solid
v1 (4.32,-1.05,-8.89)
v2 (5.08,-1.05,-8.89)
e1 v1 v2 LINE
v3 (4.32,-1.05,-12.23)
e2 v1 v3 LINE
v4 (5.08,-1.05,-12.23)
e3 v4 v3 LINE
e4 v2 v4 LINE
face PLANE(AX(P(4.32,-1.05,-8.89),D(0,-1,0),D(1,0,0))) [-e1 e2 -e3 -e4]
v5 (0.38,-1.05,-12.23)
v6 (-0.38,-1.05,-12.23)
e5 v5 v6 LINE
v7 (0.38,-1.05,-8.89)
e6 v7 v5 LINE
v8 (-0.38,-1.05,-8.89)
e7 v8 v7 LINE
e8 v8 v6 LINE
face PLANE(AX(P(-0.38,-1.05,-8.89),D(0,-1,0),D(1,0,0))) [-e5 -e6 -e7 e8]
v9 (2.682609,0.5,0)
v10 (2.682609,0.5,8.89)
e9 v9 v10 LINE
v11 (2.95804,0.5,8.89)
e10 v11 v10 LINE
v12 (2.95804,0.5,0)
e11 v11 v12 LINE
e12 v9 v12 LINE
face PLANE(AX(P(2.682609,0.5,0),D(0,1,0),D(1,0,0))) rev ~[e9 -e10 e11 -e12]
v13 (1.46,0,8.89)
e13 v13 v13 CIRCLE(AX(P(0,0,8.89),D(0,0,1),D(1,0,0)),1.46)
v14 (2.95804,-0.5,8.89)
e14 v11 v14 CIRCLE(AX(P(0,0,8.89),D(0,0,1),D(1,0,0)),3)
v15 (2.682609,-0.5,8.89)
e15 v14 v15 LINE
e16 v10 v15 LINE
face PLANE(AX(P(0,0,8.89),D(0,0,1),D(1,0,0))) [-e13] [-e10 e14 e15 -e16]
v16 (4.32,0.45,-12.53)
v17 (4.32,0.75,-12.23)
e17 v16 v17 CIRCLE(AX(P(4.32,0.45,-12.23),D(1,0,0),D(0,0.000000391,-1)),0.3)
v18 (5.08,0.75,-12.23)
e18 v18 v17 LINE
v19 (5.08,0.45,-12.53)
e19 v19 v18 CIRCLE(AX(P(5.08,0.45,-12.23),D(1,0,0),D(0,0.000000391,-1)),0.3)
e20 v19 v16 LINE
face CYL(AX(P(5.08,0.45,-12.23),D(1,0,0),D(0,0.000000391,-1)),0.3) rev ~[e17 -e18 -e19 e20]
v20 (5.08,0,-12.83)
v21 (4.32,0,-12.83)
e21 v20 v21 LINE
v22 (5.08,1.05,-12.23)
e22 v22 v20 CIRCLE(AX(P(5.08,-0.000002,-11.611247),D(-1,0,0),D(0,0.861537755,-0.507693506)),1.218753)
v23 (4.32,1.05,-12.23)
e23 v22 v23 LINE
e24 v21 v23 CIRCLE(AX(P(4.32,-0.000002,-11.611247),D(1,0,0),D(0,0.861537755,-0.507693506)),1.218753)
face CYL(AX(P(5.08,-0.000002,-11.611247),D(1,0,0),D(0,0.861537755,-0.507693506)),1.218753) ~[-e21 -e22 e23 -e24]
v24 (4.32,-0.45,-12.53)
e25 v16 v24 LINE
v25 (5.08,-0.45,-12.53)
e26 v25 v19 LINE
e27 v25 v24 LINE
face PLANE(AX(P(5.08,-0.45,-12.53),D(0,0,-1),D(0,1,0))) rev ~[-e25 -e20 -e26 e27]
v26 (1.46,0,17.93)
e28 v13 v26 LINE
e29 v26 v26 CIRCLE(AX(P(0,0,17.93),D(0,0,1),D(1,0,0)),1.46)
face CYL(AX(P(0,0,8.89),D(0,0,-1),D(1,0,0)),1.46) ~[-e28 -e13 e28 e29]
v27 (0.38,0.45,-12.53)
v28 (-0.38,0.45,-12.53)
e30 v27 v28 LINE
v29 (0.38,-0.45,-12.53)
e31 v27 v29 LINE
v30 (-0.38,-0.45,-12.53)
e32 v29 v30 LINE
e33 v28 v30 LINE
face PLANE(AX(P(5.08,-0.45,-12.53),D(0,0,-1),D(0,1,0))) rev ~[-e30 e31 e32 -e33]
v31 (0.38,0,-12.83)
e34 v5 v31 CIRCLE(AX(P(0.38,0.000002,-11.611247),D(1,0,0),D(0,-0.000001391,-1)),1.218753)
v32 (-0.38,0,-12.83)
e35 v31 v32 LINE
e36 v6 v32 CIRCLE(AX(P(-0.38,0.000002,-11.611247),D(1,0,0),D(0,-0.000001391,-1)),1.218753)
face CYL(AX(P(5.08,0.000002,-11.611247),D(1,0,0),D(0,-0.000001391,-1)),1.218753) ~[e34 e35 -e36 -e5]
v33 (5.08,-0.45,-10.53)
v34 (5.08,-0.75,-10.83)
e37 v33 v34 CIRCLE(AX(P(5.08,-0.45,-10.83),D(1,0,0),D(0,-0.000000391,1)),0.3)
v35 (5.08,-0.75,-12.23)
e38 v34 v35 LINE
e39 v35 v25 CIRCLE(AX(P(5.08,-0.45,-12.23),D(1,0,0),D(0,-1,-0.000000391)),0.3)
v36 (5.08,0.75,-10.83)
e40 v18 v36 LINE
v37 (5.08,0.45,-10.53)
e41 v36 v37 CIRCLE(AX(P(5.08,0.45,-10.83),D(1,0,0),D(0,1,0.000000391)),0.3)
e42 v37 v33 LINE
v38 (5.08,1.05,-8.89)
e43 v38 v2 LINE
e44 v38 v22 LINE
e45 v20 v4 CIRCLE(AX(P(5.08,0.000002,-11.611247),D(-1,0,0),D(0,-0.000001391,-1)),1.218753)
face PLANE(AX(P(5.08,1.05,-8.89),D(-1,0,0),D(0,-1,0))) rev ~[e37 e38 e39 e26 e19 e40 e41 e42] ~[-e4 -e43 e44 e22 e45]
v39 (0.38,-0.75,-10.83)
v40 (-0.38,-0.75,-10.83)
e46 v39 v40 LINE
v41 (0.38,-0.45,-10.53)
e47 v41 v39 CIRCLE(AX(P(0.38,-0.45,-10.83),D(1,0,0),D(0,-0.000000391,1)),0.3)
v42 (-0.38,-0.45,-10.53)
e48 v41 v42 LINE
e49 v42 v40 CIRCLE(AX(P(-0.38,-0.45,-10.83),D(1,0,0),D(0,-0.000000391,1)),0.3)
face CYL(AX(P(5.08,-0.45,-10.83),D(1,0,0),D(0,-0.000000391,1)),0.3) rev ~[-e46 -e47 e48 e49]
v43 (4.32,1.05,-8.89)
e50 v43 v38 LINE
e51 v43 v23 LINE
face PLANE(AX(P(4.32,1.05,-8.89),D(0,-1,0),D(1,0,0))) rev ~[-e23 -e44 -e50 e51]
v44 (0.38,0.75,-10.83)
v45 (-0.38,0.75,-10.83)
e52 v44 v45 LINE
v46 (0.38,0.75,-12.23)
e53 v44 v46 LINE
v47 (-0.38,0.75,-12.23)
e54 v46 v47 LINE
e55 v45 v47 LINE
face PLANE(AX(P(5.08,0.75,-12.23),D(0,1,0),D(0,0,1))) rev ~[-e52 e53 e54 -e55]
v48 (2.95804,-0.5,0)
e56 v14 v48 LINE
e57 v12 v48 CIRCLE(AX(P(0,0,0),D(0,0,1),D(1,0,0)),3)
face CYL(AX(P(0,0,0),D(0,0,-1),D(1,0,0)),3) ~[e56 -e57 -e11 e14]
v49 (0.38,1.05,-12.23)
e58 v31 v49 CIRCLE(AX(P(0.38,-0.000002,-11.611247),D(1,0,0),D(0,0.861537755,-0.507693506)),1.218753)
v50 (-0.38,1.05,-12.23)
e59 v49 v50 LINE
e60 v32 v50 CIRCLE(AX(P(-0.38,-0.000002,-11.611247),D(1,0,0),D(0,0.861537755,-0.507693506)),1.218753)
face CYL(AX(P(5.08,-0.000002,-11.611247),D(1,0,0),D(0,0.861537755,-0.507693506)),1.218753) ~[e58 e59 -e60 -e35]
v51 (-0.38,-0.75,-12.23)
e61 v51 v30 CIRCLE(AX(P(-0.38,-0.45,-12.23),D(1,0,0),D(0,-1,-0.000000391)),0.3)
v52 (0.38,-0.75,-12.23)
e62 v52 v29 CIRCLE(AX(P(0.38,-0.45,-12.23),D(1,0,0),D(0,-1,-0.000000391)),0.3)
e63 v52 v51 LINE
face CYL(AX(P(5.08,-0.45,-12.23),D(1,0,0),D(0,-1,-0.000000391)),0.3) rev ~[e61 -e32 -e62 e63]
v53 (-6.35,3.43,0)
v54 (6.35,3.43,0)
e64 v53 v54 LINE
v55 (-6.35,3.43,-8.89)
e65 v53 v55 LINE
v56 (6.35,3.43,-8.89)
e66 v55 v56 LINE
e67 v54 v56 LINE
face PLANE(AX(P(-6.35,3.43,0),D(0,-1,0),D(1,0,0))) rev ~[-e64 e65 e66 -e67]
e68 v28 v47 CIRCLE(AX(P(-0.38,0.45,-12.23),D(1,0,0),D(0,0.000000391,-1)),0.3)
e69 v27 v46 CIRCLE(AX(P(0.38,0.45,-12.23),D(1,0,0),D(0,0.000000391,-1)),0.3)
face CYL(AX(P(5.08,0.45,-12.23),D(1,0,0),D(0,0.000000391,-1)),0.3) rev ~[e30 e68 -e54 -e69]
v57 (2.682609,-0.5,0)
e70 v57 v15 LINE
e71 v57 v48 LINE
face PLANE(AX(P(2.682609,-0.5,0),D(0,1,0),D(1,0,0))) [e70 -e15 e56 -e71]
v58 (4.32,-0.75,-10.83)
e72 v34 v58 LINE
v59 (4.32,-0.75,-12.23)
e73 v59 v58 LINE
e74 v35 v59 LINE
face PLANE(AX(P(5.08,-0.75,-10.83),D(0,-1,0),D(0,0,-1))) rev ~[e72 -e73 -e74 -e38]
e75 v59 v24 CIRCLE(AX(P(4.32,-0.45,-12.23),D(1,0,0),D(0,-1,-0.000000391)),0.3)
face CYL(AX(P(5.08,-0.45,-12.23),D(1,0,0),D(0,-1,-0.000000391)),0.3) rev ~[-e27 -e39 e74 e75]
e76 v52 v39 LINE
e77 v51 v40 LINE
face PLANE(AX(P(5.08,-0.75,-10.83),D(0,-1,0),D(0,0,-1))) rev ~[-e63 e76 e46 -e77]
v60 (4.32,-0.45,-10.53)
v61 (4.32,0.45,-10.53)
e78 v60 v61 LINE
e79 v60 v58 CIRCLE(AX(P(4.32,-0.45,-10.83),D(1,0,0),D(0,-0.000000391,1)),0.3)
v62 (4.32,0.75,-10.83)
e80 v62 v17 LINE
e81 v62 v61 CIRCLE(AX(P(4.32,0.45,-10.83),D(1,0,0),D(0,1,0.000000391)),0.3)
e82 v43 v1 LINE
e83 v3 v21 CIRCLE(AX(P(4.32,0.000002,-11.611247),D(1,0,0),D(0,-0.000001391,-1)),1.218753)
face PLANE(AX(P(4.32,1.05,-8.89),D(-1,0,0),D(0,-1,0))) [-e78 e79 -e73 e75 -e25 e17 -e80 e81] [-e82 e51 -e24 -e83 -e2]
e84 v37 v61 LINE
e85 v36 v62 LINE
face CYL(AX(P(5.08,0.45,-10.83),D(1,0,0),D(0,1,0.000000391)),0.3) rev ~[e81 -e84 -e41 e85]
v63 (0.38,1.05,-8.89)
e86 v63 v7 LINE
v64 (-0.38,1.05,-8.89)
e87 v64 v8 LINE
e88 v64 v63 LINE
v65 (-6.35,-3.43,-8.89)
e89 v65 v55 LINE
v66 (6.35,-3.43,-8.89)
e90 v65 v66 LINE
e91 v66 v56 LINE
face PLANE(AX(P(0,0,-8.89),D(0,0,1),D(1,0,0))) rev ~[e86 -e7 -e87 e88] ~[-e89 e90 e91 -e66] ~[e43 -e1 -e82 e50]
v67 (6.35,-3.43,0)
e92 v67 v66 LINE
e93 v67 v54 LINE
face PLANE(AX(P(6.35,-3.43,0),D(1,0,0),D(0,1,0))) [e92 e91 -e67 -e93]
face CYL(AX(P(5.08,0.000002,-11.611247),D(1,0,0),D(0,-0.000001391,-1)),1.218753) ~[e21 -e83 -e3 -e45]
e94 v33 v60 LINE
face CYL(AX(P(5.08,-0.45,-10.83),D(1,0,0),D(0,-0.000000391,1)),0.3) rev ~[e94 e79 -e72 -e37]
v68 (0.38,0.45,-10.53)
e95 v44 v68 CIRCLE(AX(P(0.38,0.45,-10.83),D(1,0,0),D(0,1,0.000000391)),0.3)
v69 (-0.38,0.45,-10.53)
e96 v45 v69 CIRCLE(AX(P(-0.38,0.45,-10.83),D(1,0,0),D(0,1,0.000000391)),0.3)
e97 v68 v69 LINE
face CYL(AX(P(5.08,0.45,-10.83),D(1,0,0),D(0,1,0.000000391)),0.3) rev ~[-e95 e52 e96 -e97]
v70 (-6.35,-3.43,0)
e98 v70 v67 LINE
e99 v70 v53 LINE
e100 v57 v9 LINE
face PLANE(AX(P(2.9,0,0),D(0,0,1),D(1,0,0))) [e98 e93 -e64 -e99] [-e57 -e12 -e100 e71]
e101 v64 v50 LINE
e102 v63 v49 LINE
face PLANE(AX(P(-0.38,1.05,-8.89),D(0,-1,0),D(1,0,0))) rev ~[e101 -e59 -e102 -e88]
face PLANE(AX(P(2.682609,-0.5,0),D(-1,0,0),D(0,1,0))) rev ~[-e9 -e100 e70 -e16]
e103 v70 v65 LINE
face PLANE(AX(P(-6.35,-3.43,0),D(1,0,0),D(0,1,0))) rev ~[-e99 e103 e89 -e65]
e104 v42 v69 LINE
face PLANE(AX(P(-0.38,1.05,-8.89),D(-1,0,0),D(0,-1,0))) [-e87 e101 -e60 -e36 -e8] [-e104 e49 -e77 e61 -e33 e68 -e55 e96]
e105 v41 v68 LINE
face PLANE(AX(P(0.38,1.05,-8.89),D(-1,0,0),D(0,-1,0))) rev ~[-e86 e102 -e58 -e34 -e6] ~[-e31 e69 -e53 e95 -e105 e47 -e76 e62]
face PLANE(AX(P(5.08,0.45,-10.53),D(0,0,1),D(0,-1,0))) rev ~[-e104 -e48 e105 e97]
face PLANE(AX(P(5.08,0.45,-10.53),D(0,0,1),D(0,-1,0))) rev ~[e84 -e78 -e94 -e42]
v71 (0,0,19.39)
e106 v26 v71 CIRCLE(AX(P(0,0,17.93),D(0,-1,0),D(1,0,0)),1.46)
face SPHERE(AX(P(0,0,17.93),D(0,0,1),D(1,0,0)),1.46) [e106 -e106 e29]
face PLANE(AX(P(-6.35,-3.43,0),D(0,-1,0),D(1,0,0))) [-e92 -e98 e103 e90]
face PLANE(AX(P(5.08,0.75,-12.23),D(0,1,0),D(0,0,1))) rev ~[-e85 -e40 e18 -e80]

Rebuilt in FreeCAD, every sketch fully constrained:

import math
import FreeCAD as App
import Part
import Sketcher

V = App.Vector


def edges_at(feature, points):
    """Names of the edges that pass closest to the given points."""
    edges = feature.Shape.Edges
    near = lambda p: min(range(len(edges)), key=lambda i: edges[i].distToShape(Part.Vertex(*p))[0])
    return sorted({f"Edge{near(p) + 1}" for p in points})


def add_polygon(sketch, points):
    """Adds a closed chain of lines whose ends are joined by coincident constraints."""
    first, n = sketch.GeometryCount, len(points)
    for a, b in zip(points, points[1:] + points[:1]):
        sketch.addGeometry(Part.LineSegment(App.Vector(*a, 0), App.Vector(*b, 0)), False)
    for i in range(n):
        sketch.addConstraint(Sketcher.Constraint("Coincident", first + i, 2, first + (i + 1) % n, 1))

doc = App.newDocument("Part")
body = doc.addObject("PartDesign::Body", "Body")

# Sketch on XY plane
sketch1 = doc.addObject("Sketcher::SketchObject", "Sketch")
body.addObject(sketch1)
sketch1.AttachmentSupport = (doc.XY_Plane, [""])
sketch1.MapMode = "FlatFace"
add_polygon(sketch1, [(-6.35, 3.43), (-6.35, -3.43), (6.35, -3.43), (6.35, 3.43)])  # lines 0-3
sketch1.addConstraint(Sketcher.Constraint("Vertical", 0))
sketch1.addConstraint(Sketcher.Constraint("Horizontal", 1))
sketch1.addConstraint(Sketcher.Constraint("Vertical", 2))
sketch1.addConstraint(Sketcher.Constraint("Horizontal", 3))
sketch1.addConstraint(Sketcher.Constraint("Symmetric", 0, 2, 2, 2, -1, 1))
sketch1.addConstraint(Sketcher.Constraint("DistanceX", 1, 1, 1, 2, 12.7))
sketch1.addConstraint(Sketcher.Constraint("DistanceY", 0, 2, 0, 1, 6.86))
pad1 = doc.addObject("PartDesign::Pad", "Pad")
body.addObject(pad1)
pad1.Profile = sketch1
pad1.Length = 8.89
pad1.Reversed = True

# Sketch on XY plane
sketch2 = doc.addObject("Sketcher::SketchObject", "Sketch001")
body.addObject(sketch2)
sketch2.AttachmentSupport = (doc.XY_Plane, [""])
sketch2.MapMode = "FlatFace"
sketch2.addGeometry(Part.Circle(V(0, 0, 0), V(0, 0, 1), 3), False)
sketch2.addConstraint(Sketcher.Constraint("Coincident", 0, 3, -1, 1))
sketch2.addConstraint(Sketcher.Constraint("Diameter", 0, 6.0))
pad2 = doc.addObject("PartDesign::Pad", "Pad001")
body.addObject(pad2)
pad2.Profile = sketch2
pad2.Length = 8.89

# Sketch on XY plane
sketch3 = doc.addObject("Sketcher::SketchObject", "Sketch002")
body.addObject(sketch3)
sketch3.AttachmentSupport = (doc.XY_Plane, [""])
sketch3.MapMode = "FlatFace"
sketch3.AttachmentOffset = App.Placement(V(0, 0, 8.89), App.Rotation())
sketch3.addGeometry(Part.Circle(V(0, 0, 0), V(0, 0, 1), 1.46), False)
sketch3.addConstraint(Sketcher.Constraint("Coincident", 0, 3, -1, 1))
sketch3.addConstraint(Sketcher.Constraint("Diameter", 0, 2.92))
pad3 = doc.addObject("PartDesign::Pad", "Pad002")
body.addObject(pad3)
pad3.Profile = sketch3
pad3.Length = 10.5
doc.recompute()

fillet = doc.addObject("PartDesign::Fillet", "Fillet")
body.addObject(fillet)
fillet.Base = (pad3, edges_at(pad3, [(-1.46, 0, 19.39)]))
fillet.Radius = 1.46

# Sketch on XY plane
sketch4 = doc.addObject("Sketcher::SketchObject", "Sketch003")
body.addObject(sketch4)
sketch4.AttachmentSupport = (doc.XY_Plane, [""])
sketch4.MapMode = "FlatFace"
add_polygon(sketch4, [(2.682609, 0.5), (2.682609, -0.5), (3.117391, -0.5), (3.117391, 0.5)])  # lines 0-3
sketch4.addConstraint(Sketcher.Constraint("Vertical", 0))
sketch4.addConstraint(Sketcher.Constraint("Horizontal", 1))
sketch4.addConstraint(Sketcher.Constraint("Vertical", 2))
sketch4.addConstraint(Sketcher.Constraint("Horizontal", 3))
sketch4.addConstraint(Sketcher.Constraint("DistanceY", 0, 2, 0, 1, 1.0))
sketch4.addConstraint(Sketcher.Constraint("DistanceY", 0, 2, -1, 1, 0.5))
sketch4.addConstraint(Sketcher.Constraint("DistanceX", 1, 1, 1, 2, 0.434782))
sketch4.addConstraint(Sketcher.Constraint("DistanceX", -1, 1, 0, 2, 2.682609))
pocket1 = doc.addObject("PartDesign::Pocket", "Pocket")
body.addObject(pocket1)
pocket1.Profile = sketch4
pocket1.Length = 25
pocket1.Reversed = True

# Sketch on XY plane
sketch5 = doc.addObject("Sketcher::SketchObject", "Sketch004")
body.addObject(sketch5)
sketch5.AttachmentSupport = (doc.XY_Plane, [""])
sketch5.MapMode = "FlatFace"
sketch5.AttachmentOffset = App.Placement(V(0, 0, -8.89), App.Rotation())
add_polygon(sketch5, [(-0.38, -1.05), (-0.38, 1.05), (0.38, 1.05), (0.38, -1.05)])  # lines 0-3
add_polygon(sketch5, [(4.32, -1.05), (4.32, 1.05), (5.08, 1.05), (5.08, -1.05)])  # lines 4-7
sketch5.addConstraint(Sketcher.Constraint("Vertical", 0))
sketch5.addConstraint(Sketcher.Constraint("Horizontal", 1))
sketch5.addConstraint(Sketcher.Constraint("Vertical", 2))
sketch5.addConstraint(Sketcher.Constraint("Horizontal", 3))
sketch5.addConstraint(Sketcher.Constraint("Vertical", 4))
sketch5.addConstraint(Sketcher.Constraint("Horizontal", 5))
sketch5.addConstraint(Sketcher.Constraint("Vertical", 6))
sketch5.addConstraint(Sketcher.Constraint("Horizontal", 7))
sketch5.addConstraint(Sketcher.Constraint("Symmetric", 0, 2, 2, 2, -1, 1))
sketch5.addConstraint(Sketcher.Constraint("Horizontal", 1, 2, 4, 2))
sketch5.addConstraint(Sketcher.Constraint("Horizontal", 3, 2, 6, 2))
sketch5.addConstraint(Sketcher.Constraint("Equal", 3, 5))
sketch5.addConstraint(Sketcher.Constraint("DistanceY", 0, 1, 0, 2, 2.1))
sketch5.addConstraint(Sketcher.Constraint("DistanceX", 1, 1, 1, 2, 0.76))
sketch5.addConstraint(Sketcher.Constraint("DistanceX", 0, 2, 4, 2, 4.7))
pad4 = doc.addObject("PartDesign::Pad", "Pad003")
body.addObject(pad4)
pad4.Profile = sketch5
pad4.Length = 3.94
pad4.Reversed = True

# Sketch on YZ plane
sketch6 = doc.addObject("Sketcher::SketchObject", "Sketch005")
body.addObject(sketch6)
sketch6.AttachmentSupport = (doc.YZ_Plane, [""])
sketch6.MapMode = "FlatFace"
sketch6.AttachmentOffset = App.Placement(V(0, 0, 5.08), App.Rotation())
sketch6.addGeometry(Part.LineSegment(V(0.45, -10.53, 0), V(-0.45, -10.53, 0)), False)
sketch6.addGeometry(Part.ArcOfCircle(Part.Circle(V(-0.45, -10.83, 0), V(0, 0, 1), 0.3), math.radians(90.000022), math.radians(179.999978)), False)
sketch6.addGeometry(Part.LineSegment(V(-0.75, -10.83, 0), V(-0.75, -12.23, 0)), False)
sketch6.addGeometry(Part.ArcOfCircle(Part.Circle(V(-0.45, -12.23, 0), V(0, 0, 1), 0.3), math.radians(-179.999978), math.radians(-90.000022)), False)
sketch6.addGeometry(Part.LineSegment(V(-0.45, -12.53, 0), V(0.45, -12.53, 0)), False)
sketch6.addGeometry(Part.ArcOfCircle(Part.Circle(V(0.45, -12.23, 0), V(0, 0, 1), 0.3), math.radians(-89.999978), math.radians(-0.000022)), False)
sketch6.addGeometry(Part.LineSegment(V(0.75, -12.23, 0), V(0.75, -10.83, 0)), False)
sketch6.addGeometry(Part.ArcOfCircle(Part.Circle(V(0.45, -10.83, 0), V(0, 0, 1), 0.3), math.radians(0.000022), math.radians(89.999978)), False)
sketch6.addGeometry(Part.ArcOfCircle(Part.Circle(V(-0.000002, -11.611247, 0), V(0, 0, 1), 1.218753), math.radians(-89.99992), math.radians(-30.510317)), False)
sketch6.addGeometry(Part.LineSegment(V(0, -12.83, 0), V(1.05, -12.83, 0)), False)
sketch6.addGeometry(Part.LineSegment(V(1.05, -12.83, 0), V(1.05, -12.23, 0)), False)
sketch6.addGeometry(Part.ArcOfCircle(Part.Circle(V(0.000002, -11.611247, 0), V(0, 0, 1), 1.218753), math.radians(-149.489683), math.radians(-90.00008)), False)
sketch6.addGeometry(Part.LineSegment(V(-1.05, -12.23, 0), V(-1.05, -12.83, 0)), False)
sketch6.addGeometry(Part.LineSegment(V(-1.05, -12.83, 0), V(0, -12.83, 0)), False)
sketch6.addConstraint(Sketcher.Constraint("Tangent", 0, 2, 1, 1))
sketch6.addConstraint(Sketcher.Constraint("Tangent", 1, 2, 2, 1))
sketch6.addConstraint(Sketcher.Constraint("Tangent", 2, 2, 3, 1))
sketch6.addConstraint(Sketcher.Constraint("Tangent", 3, 2, 4, 1))
sketch6.addConstraint(Sketcher.Constraint("Tangent", 4, 2, 5, 1))
sketch6.addConstraint(Sketcher.Constraint("Tangent", 5, 2, 6, 1))
sketch6.addConstraint(Sketcher.Constraint("Tangent", 6, 2, 7, 1))
sketch6.addConstraint(Sketcher.Constraint("Tangent", 7, 2, 0, 1))
sketch6.addConstraint(Sketcher.Constraint("Tangent", 8, 1, 9, 1))
sketch6.addConstraint(Sketcher.Constraint("Coincident", 9, 2, 10, 1))
sketch6.addConstraint(Sketcher.Constraint("Coincident", 10, 2, 8, 2))
sketch6.addConstraint(Sketcher.Constraint("Coincident", 11, 1, 12, 1))
sketch6.addConstraint(Sketcher.Constraint("Coincident", 12, 2, 13, 1))
sketch6.addConstraint(Sketcher.Constraint("Tangent", 13, 2, 11, 2))
sketch6.addConstraint(Sketcher.Constraint("Horizontal", 0))
sketch6.addConstraint(Sketcher.Constraint("Vertical", 2))
sketch6.addConstraint(Sketcher.Constraint("Horizontal", 4))
sketch6.addConstraint(Sketcher.Constraint("Vertical", 6))
sketch6.addConstraint(Sketcher.Constraint("Horizontal", 9))
sketch6.addConstraint(Sketcher.Constraint("Vertical", 10))
sketch6.addConstraint(Sketcher.Constraint("Vertical", 12))
sketch6.addConstraint(Sketcher.Constraint("Horizontal", 13))
sketch6.addConstraint(Sketcher.Constraint("Coincident", 11, 3, 8, 3))
sketch6.addConstraint(Sketcher.Constraint("Equal", 1, 3))
sketch6.addConstraint(Sketcher.Constraint("Equal", 3, 5))
sketch6.addConstraint(Sketcher.Constraint("Equal", 5, 7))
sketch6.addConstraint(Sketcher.Constraint("Equal", 8, 11))
sketch6.addConstraint(Sketcher.Constraint("Symmetric", 10, 2, 11, 1, -2))
sketch6.addConstraint(Sketcher.Constraint("Horizontal", 5, 2, 10, 2))
sketch6.addConstraint(Sketcher.Constraint("Radius", 1, 0.3))
sketch6.addConstraint(Sketcher.Constraint("DistanceX", 0, 2, 0, 1, 0.9))
sketch6.addConstraint(Sketcher.Constraint("DistanceY", 2, 2, 2, 1, 1.4))
sketch6.addConstraint(Sketcher.Constraint("DistanceY", 10, 1, 10, 2, 0.6))
sketch6.addConstraint(Sketcher.Constraint("DistanceX", 9, 1, 9, 2, 1.05))
sketch6.addConstraint(Sketcher.Constraint("DistanceX", 4, 2, 9, 2, 0.6))
sketch6.addConstraint(Sketcher.Constraint("DistanceY", 1, 3, -1, 1, 10.83))
pocket2 = doc.addObject("PartDesign::Pocket", "Pocket001")
body.addObject(pocket2)
pocket2.Profile = sketch6
pocket2.Type = "ThroughAll"

doc.recompute()
